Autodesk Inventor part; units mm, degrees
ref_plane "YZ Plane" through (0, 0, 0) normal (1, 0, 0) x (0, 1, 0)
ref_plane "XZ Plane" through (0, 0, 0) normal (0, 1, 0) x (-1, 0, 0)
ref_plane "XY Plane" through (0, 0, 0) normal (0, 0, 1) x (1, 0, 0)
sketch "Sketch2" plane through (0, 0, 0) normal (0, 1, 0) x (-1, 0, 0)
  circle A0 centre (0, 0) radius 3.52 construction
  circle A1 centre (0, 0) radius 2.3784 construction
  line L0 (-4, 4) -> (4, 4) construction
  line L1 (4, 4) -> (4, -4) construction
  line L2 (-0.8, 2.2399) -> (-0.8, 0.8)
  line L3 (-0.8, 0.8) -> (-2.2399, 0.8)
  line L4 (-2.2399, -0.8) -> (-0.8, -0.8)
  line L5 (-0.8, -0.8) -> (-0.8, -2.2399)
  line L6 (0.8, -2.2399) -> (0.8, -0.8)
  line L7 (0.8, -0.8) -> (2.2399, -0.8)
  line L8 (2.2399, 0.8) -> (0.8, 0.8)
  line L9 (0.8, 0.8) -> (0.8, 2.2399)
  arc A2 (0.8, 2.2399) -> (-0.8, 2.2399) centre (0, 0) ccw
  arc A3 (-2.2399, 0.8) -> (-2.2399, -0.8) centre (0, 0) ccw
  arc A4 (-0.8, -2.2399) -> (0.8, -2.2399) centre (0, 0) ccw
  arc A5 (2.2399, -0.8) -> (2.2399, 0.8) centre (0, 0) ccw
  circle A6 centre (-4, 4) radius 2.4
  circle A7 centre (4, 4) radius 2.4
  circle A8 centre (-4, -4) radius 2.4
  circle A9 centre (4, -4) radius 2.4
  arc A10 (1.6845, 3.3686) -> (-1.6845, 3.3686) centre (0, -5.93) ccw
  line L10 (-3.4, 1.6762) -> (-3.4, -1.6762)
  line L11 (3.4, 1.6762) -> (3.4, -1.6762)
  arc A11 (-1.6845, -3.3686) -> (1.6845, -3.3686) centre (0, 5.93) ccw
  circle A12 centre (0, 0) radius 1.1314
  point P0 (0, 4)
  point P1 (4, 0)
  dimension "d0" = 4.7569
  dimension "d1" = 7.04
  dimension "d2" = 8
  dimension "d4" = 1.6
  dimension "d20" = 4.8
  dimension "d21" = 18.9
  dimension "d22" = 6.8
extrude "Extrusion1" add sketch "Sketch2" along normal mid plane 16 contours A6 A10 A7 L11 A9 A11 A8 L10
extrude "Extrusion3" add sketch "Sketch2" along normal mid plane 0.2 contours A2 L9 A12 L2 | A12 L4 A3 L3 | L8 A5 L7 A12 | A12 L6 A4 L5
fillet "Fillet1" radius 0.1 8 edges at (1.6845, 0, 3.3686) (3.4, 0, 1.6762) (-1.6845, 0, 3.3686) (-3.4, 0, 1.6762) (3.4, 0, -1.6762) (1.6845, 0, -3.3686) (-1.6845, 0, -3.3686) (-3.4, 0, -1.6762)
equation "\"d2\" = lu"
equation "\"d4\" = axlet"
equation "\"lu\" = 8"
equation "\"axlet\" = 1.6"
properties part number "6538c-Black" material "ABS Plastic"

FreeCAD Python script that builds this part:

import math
import FreeCAD as App
import Part
import Sketcher
Q = App.Units.Quantity


def edges_at(feature, points):
    """Names of the edges that pass closest to the given points."""
    edges = feature.Shape.Edges
    near = lambda p: min(range(len(edges)), key=lambda i: edges[i].distToShape(Part.Vertex(*p))[0])
    return sorted({f"Edge{near(p) + 1}" for p in points})

doc = App.newDocument("Part")
body = doc.addObject("PartDesign::Body", "Body")

sketch1 = body.newObject("Sketcher::SketchObject", "Sketch")
sketch1.AttachmentSupport = (doc.getObject("XZ_Plane"), [""])
sketch1.MapMode = "FlatFace"
sketch1.addGeometry(Part.ArcOfCircle(Part.Circle(App.Vector(4, 4, 0), App.Vector(0, 0, 1), 2.4), math.radians(-165), math.radians(-104)), False)
sketch1.addGeometry(Part.LineSegment(App.Vector(3.4, 1.7, 0), App.Vector(3.4, -1.7, 0)), False)
sketch1.addGeometry(Part.ArcOfCircle(Part.Circle(App.Vector(4, -4, 0), App.Vector(0, 0, 1), 2.4), math.radians(104), math.radians(165)), False)
sketch1.addGeometry(Part.ArcOfCircle(Part.Circle(App.Vector(0, 5.9, 0), App.Vector(0, 0, 1), 9.4), math.radians(-100), math.radians(-80)), False)
sketch1.addGeometry(Part.ArcOfCircle(Part.Circle(App.Vector(-4, -4, 0), App.Vector(0, 0, 1), 2.4), math.radians(15), math.radians(76)), False)
sketch1.addGeometry(Part.LineSegment(App.Vector(-3.4, -1.7, 0), App.Vector(-3.4, 1.7, 0)), False)
sketch1.addGeometry(Part.ArcOfCircle(Part.Circle(App.Vector(-4, 4, 0), App.Vector(0, 0, 1), 2.4), math.radians(-76), math.radians(-15)), False)
sketch1.addGeometry(Part.ArcOfCircle(Part.Circle(App.Vector(0, -5.9, 0), App.Vector(0, 0, 1), 9.4), math.radians(80), math.radians(100)), False)
sketch1.addGeometry(Part.LineSegment(App.Vector(0.8, 0.8, 0), App.Vector(0.8, 2.2, 0)), False)
sketch1.addGeometry(Part.ArcOfCircle(Part.Circle(App.Vector(0, 0, 0), App.Vector(0, 0, 1), 2.4), math.radians(70), math.radians(110)), False)
sketch1.addGeometry(Part.LineSegment(App.Vector(-0.8, 2.2, 0), App.Vector(-0.8, 0.8, 0)), False)
sketch1.addGeometry(Part.LineSegment(App.Vector(-0.8, 0.8, 0), App.Vector(-2.2, 0.8, 0)), False)
sketch1.addGeometry(Part.ArcOfCircle(Part.Circle(App.Vector(0, 0, 0), App.Vector(0, 0, 1), 2.4), math.radians(160), math.radians(200)), False)
sketch1.addGeometry(Part.LineSegment(App.Vector(-2.2, -0.8, 0), App.Vector(-0.8, -0.8, 0)), False)
sketch1.addGeometry(Part.LineSegment(App.Vector(-0.8, -0.8, 0), App.Vector(-0.8, -2.2, 0)), False)
sketch1.addGeometry(Part.ArcOfCircle(Part.Circle(App.Vector(0, 0, 0), App.Vector(0, 0, 1), 2.4), math.radians(-110), math.radians(-70)), False)
sketch1.addGeometry(Part.LineSegment(App.Vector(0.8, -2.2, 0), App.Vector(0.8, -0.8, 0)), False)
sketch1.addGeometry(Part.LineSegment(App.Vector(0.8, -0.8, 0), App.Vector(2.2, -0.8, 0)), False)
sketch1.addGeometry(Part.ArcOfCircle(Part.Circle(App.Vector(0, 0, 0), App.Vector(0, 0, 1), 2.4), math.radians(-20), math.radians(20)), False)
sketch1.addGeometry(Part.LineSegment(App.Vector(2.2, 0.8, 0), App.Vector(0.8, 0.8, 0)), False)
sketch1.addConstraint(Sketcher.Constraint("Coincident", 0, 2, 1, 1))
sketch1.addConstraint(Sketcher.Constraint("Coincident", 1, 2, 2, 1))
sketch1.addConstraint(Sketcher.Constraint("Coincident", 2, 2, 3, 2))
sketch1.addConstraint(Sketcher.Constraint("Coincident", 3, 1, 4, 1))
sketch1.addConstraint(Sketcher.Constraint("Coincident", 4, 2, 5, 1))
sketch1.addConstraint(Sketcher.Constraint("Coincident", 5, 2, 6, 1))
sketch1.addConstraint(Sketcher.Constraint("Coincident", 6, 2, 7, 2))
sketch1.addConstraint(Sketcher.Constraint("Coincident", 7, 1, 0, 1))
sketch1.addConstraint(Sketcher.Constraint("Coincident", 8, 2, 9, 1))
sketch1.addConstraint(Sketcher.Constraint("Coincident", 9, 2, 10, 1))
sketch1.addConstraint(Sketcher.Constraint("Coincident", 10, 2, 11, 1))
sketch1.addConstraint(Sketcher.Constraint("Coincident", 11, 2, 12, 1))
sketch1.addConstraint(Sketcher.Constraint("Coincident", 12, 2, 13, 1))
sketch1.addConstraint(Sketcher.Constraint("Coincident", 13, 2, 14, 1))
sketch1.addConstraint(Sketcher.Constraint("Coincident", 14, 2, 15, 1))
sketch1.addConstraint(Sketcher.Constraint("Coincident", 15, 2, 16, 1))
sketch1.addConstraint(Sketcher.Constraint("Coincident", 16, 2, 17, 1))
sketch1.addConstraint(Sketcher.Constraint("Coincident", 17, 2, 18, 1))
sketch1.addConstraint(Sketcher.Constraint("Coincident", 18, 2, 19, 1))
sketch1.addConstraint(Sketcher.Constraint("Coincident", 19, 2, 8, 1))
sketch1.addConstraint(Sketcher.Constraint("Vertical", 1))
sketch1.addConstraint(Sketcher.Constraint("Vertical", 5))
sketch1.addConstraint(Sketcher.Constraint("Vertical", 8))
sketch1.addConstraint(Sketcher.Constraint("Vertical", 10))
sketch1.addConstraint(Sketcher.Constraint("Horizontal", 11))
sketch1.addConstraint(Sketcher.Constraint("Horizontal", 13))
sketch1.addConstraint(Sketcher.Constraint("Vertical", 14))
sketch1.addConstraint(Sketcher.Constraint("Vertical", 16))
sketch1.addConstraint(Sketcher.Constraint("Horizontal", 17))
sketch1.addConstraint(Sketcher.Constraint("Horizontal", 19))
sketch1.addConstraint(Sketcher.Constraint("Coincident", 9, 3, -1, 1))
sketch1.addConstraint(Sketcher.Constraint("Coincident", 12, 3, -1, 1))
sketch1.addConstraint(Sketcher.Constraint("Coincident", 15, 3, -1, 1))
sketch1.addConstraint(Sketcher.Constraint("Coincident", 18, 3, -1, 1))
sketch1.addConstraint(Sketcher.Constraint("Equal", 0, 2))
sketch1.addConstraint(Sketcher.Constraint("Equal", 2, 4))
sketch1.addConstraint(Sketcher.Constraint("Equal", 4, 6))
sketch1.addConstraint(Sketcher.Constraint("Equal", 3, 7))
sketch1.addConstraint(Sketcher.Constraint("Equal", 9, 12))
sketch1.addConstraint(Sketcher.Constraint("Equal", 12, 15))
sketch1.addConstraint(Sketcher.Constraint("Equal", 15, 18))
sketch1.addConstraint(Sketcher.Constraint("Symmetric", 0, 3, 4, 3, -1, 1))
sketch1.addConstraint(Sketcher.Constraint("Symmetric", 2, 3, 6, 3, -1, 1))
sketch1.addConstraint(Sketcher.Constraint("Symmetric", 3, 3, 7, 3, -1, 1))
sketch1.addConstraint(Sketcher.Constraint("Symmetric", 10, 2, 16, 2, -1, 1))
sketch1.addConstraint(Sketcher.Constraint("Symmetric", 13, 2, 19, 2, -1, 1))
sketch1.addConstraint(Sketcher.Constraint("Symmetric", 2, 3, 4, 3, -2))
sketch1.addConstraint(Sketcher.Constraint("Symmetric", 13, 2, 16, 2, -2))
sketch1.addConstraint(Sketcher.Constraint("PointOnObject", 3, 3, -2))
sketch1.addConstraint(Sketcher.Constraint("Horizontal", 1, 2, 4, 2))
sketch1.addConstraint(Sketcher.Constraint("Equal", 19, 8))
sketch1.addConstraint(Sketcher.Constraint("Radius", 0, Q("2.4 mm")))
sketch1.addConstraint(Sketcher.Constraint("Radius", 3, Q("9.45 mm")))
sketch1.addConstraint(Sketcher.Constraint("DistanceY", 2, 3, 0, 3, Q("8 mm")))
sketch1.addConstraint(Sketcher.Constraint("DistanceX", 4, 3, 2, 3, Q("8 mm")))
sketch1.addConstraint(Sketcher.Constraint("Radius", 9, Q("2.3785 mm")))
sketch1.addConstraint(Sketcher.Constraint("DistanceX", 9, 2, 8, 2, Q("1.6 mm")))
sketch1.addConstraint(Sketcher.Constraint("DistanceX", -1, 1, 0, 2, Q("3.4 mm")))
sketch1.addConstraint(Sketcher.Constraint("DistanceY", -1, 1, 3, 3, Q("5.93 mm")))
pad1 = body.newObject("PartDesign::Pad", "Pad")
pad1.Profile = sketch1
pad1.Length = 16
pad1.Midplane = True

sketch2 = body.newObject("Sketcher::SketchObject", "Sketch001")
sketch2.AttachmentSupport = (doc.getObject("XZ_Plane"), [""])
sketch2.MapMode = "FlatFace"
sketch2.addGeometry(Part.ArcOfCircle(Part.Circle(App.Vector(0, 0, 0), App.Vector(0, 0, 1), 2.4), math.radians(70), math.radians(110)), False)
sketch2.addGeometry(Part.LineSegment(App.Vector(0.8, 2.2, 0), App.Vector(0.8, 0.8, 0)), False)
sketch2.addGeometry(Part.ArcOfCircle(Part.Circle(App.Vector(0, 0, 0), App.Vector(0, 0, 1), 1.1), math.radians(45), math.radians(135)), False)
sketch2.addGeometry(Part.LineSegment(App.Vector(-0.8, 0.8, 0), App.Vector(-0.8, 2.2, 0)), False)
sketch2.addGeometry(Part.ArcOfCircle(Part.Circle(App.Vector(0, 0, 0), App.Vector(0, 0, 1), 1.1), math.radians(-45), math.radians(45)), False)
sketch2.addGeometry(Part.LineSegment(App.Vector(0.8, 0.8, 0), App.Vector(2.2, 0.8, 0)), False)
sketch2.addGeometry(Part.ArcOfCircle(Part.Circle(App.Vector(0, 0, 0), App.Vector(0, 0, 1), 2.4), math.radians(-20), math.radians(20)), False)
sketch2.addGeometry(Part.LineSegment(App.Vector(2.2, -0.8, 0), App.Vector(0.8, -0.8, 0)), False)
sketch2.addGeometry(Part.LineSegment(App.Vector(-2.2, 0.8, 0), App.Vector(-0.8, 0.8, 0)), False)
sketch2.addGeometry(Part.ArcOfCircle(Part.Circle(App.Vector(0, 0, 0), App.Vector(0, 0, 1), 1.1), math.radians(135), math.radians(225)), False)
sketch2.addGeometry(Part.LineSegment(App.Vector(-0.8, -0.8, 0), App.Vector(-2.2, -0.8, 0)), False)
sketch2.addGeometry(Part.ArcOfCircle(Part.Circle(App.Vector(0, 0, 0), App.Vector(0, 0, 1), 2.4), math.radians(160), math.radians(200)), False)
sketch2.addGeometry(Part.ArcOfCircle(Part.Circle(App.Vector(0, 0, 0), App.Vector(0, 0, 1), 1.1), math.radians(-135), math.radians(-45)), False)
sketch2.addGeometry(Part.LineSegment(App.Vector(0.8, -0.8, 0), App.Vector(0.8, -2.2, 0)), False)
sketch2.addGeometry(Part.ArcOfCircle(Part.Circle(App.Vector(0, 0, 0), App.Vector(0, 0, 1), 2.4), math.radians(-110), math.radians(-70)), False)
sketch2.addGeometry(Part.LineSegment(App.Vector(-0.8, -2.2, 0), App.Vector(-0.8, -0.8, 0)), False)
sketch2.addConstraint(Sketcher.Constraint("Coincident", 0, 1, 1, 1))
sketch2.addConstraint(Sketcher.Constraint("Coincident", 1, 2, 2, 1))
sketch2.addConstraint(Sketcher.Constraint("Coincident", 2, 2, 3, 1))
sketch2.addConstraint(Sketcher.Constraint("Coincident", 3, 2, 0, 2))
sketch2.addConstraint(Sketcher.Constraint("Coincident", 4, 2, 5, 1))
sketch2.addConstraint(Sketcher.Constraint("Coincident", 5, 2, 6, 2))
sketch2.addConstraint(Sketcher.Constraint("Coincident", 6, 1, 7, 1))
sketch2.addConstraint(Sketcher.Constraint("Coincident", 7, 2, 4, 1))
sketch2.addConstraint(Sketcher.Constraint("Coincident", 8, 2, 9, 1))
sketch2.addConstraint(Sketcher.Constraint("Coincident", 9, 2, 10, 1))
sketch2.addConstraint(Sketcher.Constraint("Coincident", 10, 2, 11, 2))
sketch2.addConstraint(Sketcher.Constraint("Coincident", 11, 1, 8, 1))
sketch2.addConstraint(Sketcher.Constraint("Coincident", 12, 2, 13, 1))
sketch2.addConstraint(Sketcher.Constraint("Coincident", 13, 2, 14, 2))
sketch2.addConstraint(Sketcher.Constraint("Coincident", 14, 1, 15, 1))
sketch2.addConstraint(Sketcher.Constraint("Coincident", 15, 2, 12, 1))
sketch2.addConstraint(Sketcher.Constraint("Vertical", 1))
sketch2.addConstraint(Sketcher.Constraint("Vertical", 3))
sketch2.addConstraint(Sketcher.Constraint("Horizontal", 5))
sketch2.addConstraint(Sketcher.Constraint("Horizontal", 7))
sketch2.addConstraint(Sketcher.Constraint("Horizontal", 8))
sketch2.addConstraint(Sketcher.Constraint("Horizontal", 10))
sketch2.addConstraint(Sketcher.Constraint("Vertical", 13))
sketch2.addConstraint(Sketcher.Constraint("Vertical", 15))
sketch2.addConstraint(Sketcher.Constraint("Coincident", 0, 3, -1, 1))
sketch2.addConstraint(Sketcher.Constraint("Coincident", 2, 3, -1, 1))
sketch2.addConstraint(Sketcher.Constraint("Coincident", 4, 3, -1, 1))
sketch2.addConstraint(Sketcher.Constraint("Coincident", 6, 3, -1, 1))
sketch2.addConstraint(Sketcher.Constraint("Coincident", 9, 3, -1, 1))
sketch2.addConstraint(Sketcher.Constraint("Coincident", 11, 3, -1, 1))
sketch2.addConstraint(Sketcher.Constraint("Coincident", 12, 3, -1, 1))
sketch2.addConstraint(Sketcher.Constraint("Coincident", 14, 3, -1, 1))
sketch2.addConstraint(Sketcher.Constraint("Coincident", 4, 2, 1, 2))
sketch2.addConstraint(Sketcher.Constraint("Coincident", 8, 2, 2, 2))
sketch2.addConstraint(Sketcher.Constraint("Coincident", 12, 2, 7, 2))
sketch2.addConstraint(Sketcher.Constraint("Equal", 0, 6))
sketch2.addConstraint(Sketcher.Constraint("Equal", 6, 11))
sketch2.addConstraint(Sketcher.Constraint("Equal", 11, 14))
sketch2.addConstraint(Sketcher.Constraint("Horizontal", 1, 2, 2, 2))
sketch2.addConstraint(Sketcher.Constraint("Horizontal", 7, 2, 9, 2))
sketch2.addConstraint(Sketcher.Constraint("Horizontal", 13, 2, 14, 1))
sketch2.addConstraint(Sketcher.Constraint("Vertical", 5, 2, 6, 1))
sketch2.addConstraint(Sketcher.Constraint("Equal", 10, 1))
sketch2.addConstraint(Sketcher.Constraint("Radius", 0, Q("2.3785 mm")))
sketch2.addConstraint(Sketcher.Constraint("DistanceX", 3, 2, 0, 1, Q("1.6 mm")))
pad2 = body.newObject("PartDesign::Pad", "Pad001")
pad2.Profile = sketch2
pad2.Length = 0.2
pad2.Midplane = True
doc.recompute()

fillet = body.newObject("PartDesign::Fillet", "Fillet")
fillet.Base = (pad2, edges_at(pad2, [
    (1.685, 0, 3.369),
    (3.4, 0, 1.676),
    (-1.685, 0, 3.369),
    (-3.4, 0, 1.676),
    (3.4, 0, -1.676),
    (1.685, 0, -3.369),
    (-1.685, 0, -3.369),
    (-3.4, 0, -1.676),
]))
fillet.Radius = 0.1

doc.recompute()
